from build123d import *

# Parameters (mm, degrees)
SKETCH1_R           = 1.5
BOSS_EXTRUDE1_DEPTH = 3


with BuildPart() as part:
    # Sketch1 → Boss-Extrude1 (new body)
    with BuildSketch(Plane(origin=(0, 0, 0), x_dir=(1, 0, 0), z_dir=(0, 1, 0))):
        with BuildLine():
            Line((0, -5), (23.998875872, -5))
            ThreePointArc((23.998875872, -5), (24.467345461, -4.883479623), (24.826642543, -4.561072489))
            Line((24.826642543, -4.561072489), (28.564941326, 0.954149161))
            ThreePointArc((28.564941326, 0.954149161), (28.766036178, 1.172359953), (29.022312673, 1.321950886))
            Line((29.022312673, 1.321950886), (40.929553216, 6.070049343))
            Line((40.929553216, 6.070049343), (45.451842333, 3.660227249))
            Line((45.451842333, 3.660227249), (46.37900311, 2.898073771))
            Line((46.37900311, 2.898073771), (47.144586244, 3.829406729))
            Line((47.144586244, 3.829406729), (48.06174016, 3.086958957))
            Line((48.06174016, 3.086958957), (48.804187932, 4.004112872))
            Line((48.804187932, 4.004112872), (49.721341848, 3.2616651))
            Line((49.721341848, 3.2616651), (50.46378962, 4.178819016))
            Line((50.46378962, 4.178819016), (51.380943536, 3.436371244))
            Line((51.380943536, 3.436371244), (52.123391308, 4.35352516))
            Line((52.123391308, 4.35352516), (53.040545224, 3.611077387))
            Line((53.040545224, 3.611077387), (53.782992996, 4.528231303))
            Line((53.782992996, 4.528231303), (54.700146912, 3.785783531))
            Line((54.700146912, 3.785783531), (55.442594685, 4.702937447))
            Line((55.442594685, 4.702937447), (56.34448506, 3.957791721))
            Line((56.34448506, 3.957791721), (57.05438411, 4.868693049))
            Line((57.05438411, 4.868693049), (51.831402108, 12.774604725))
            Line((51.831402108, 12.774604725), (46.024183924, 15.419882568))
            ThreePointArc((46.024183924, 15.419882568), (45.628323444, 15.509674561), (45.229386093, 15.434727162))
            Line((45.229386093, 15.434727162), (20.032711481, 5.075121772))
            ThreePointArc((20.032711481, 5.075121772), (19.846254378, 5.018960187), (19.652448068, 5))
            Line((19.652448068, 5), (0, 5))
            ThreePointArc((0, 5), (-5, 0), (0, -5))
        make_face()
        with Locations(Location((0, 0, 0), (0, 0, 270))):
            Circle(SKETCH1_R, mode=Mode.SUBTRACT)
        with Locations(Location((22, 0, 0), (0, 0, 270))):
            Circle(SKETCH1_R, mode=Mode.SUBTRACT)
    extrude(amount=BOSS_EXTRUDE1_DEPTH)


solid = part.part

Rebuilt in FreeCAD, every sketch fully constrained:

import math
import FreeCAD as App
import Part
import Sketcher
from FreeCAD import Vector

doc = App.newDocument("Part")
params = doc.addObject("Spreadsheet::Sheet", "Params")
for row, (alias, value) in enumerate([
    ("sketch1_diameter", "3 mm"),
    ("sketch1_diameter2", "3 mm"),
    ("sketch1_radius", "1 mm"),
    ("sketch1_radius2", "1 mm"),
    ("sketch1_radius3", "1 mm"),
    ("pad1_length", "3 mm"),
], start=1):
    params.set(f"A{row}", alias)
    params.set(f"B{row}", "=" + value)
    params.setAlias(f"B{row}", alias)

body = doc.addObject("PartDesign::Body", "Body")

# Sketch on XZ plane
sketch1 = body.newObject("Sketcher::SketchObject", "Sketch")
sketch1.AttachmentSupport = (doc.getObject("XZ_Plane"), [""])
sketch1.MapMode = "FlatFace"
sketch1.addGeometry([
    Part.LineSegment(Vector(0, 5, 0), Vector(23.998876, 5, 0)),  # 0
    Part.ArcOfCircle(Part.Circle(Vector(23.998876, 4, 0), Vector(0, 0, 1), 1), math.radians(34.13), math.radians(90)),  # 1
    Part.LineSegment(Vector(24.826643, 4.561072, 0), Vector(28.564941, -0.954149, 0)),  # 2
    Part.ArcOfCircle(Part.Circle(Vector(29.392708, -0.393077, 0), Vector(0, 0, 1), 1), math.radians(-145.87), math.radians(-111.74)),  # 3
    Part.LineSegment(Vector(29.022313, -1.321951, 0), Vector(40.929553, -6.070049, 0)),  # 4
    Part.LineSegment(Vector(40.929553, -6.070049, 0), Vector(45.451842, -3.660227, 0)),  # 5
    Part.LineSegment(Vector(45.451842, -3.660227, 0), Vector(46.379003, -2.898074, 0)),  # 6
    Part.LineSegment(Vector(46.379003, -2.898074, 0), Vector(47.144586, -3.829407, 0)),  # 7
    Part.LineSegment(Vector(47.144586, -3.829407, 0), Vector(48.06174, -3.086959, 0)),  # 8
    Part.LineSegment(Vector(48.06174, -3.086959, 0), Vector(48.804188, -4.004113, 0)),  # 9
    Part.LineSegment(Vector(48.804188, -4.004113, 0), Vector(49.721342, -3.261665, 0)),  # 10
    Part.LineSegment(Vector(49.721342, -3.261665, 0), Vector(50.46379, -4.178819, 0)),  # 11
    Part.LineSegment(Vector(50.46379, -4.178819, 0), Vector(51.380944, -3.436371, 0)),  # 12
    Part.LineSegment(Vector(51.380944, -3.436371, 0), Vector(52.123391, -4.353525, 0)),  # 13
    Part.LineSegment(Vector(52.123391, -4.353525, 0), Vector(53.040545, -3.611077, 0)),  # 14
    Part.LineSegment(Vector(53.040545, -3.611077, 0), Vector(53.782993, -4.528231, 0)),  # 15
    Part.LineSegment(Vector(53.782993, -4.528231, 0), Vector(54.700147, -3.785784, 0)),  # 16
    Part.LineSegment(Vector(54.700147, -3.785784, 0), Vector(55.442595, -4.702937, 0)),  # 17
    Part.LineSegment(Vector(55.442595, -4.702937, 0), Vector(56.344485, -3.957792, 0)),  # 18
    Part.LineSegment(Vector(56.344485, -3.957792, 0), Vector(57.054384, -4.868693, 0)),  # 19
    Part.LineSegment(Vector(57.054384, -4.868693, 0), Vector(51.831402, -12.774605, 0)),  # 20
    Part.LineSegment(Vector(51.831402, -12.774605, 0), Vector(46.024184, -15.419883, 0)),  # 21
    Part.ArcOfCircle(Part.Circle(Vector(45.60965, -14.509849, 0), Vector(0, 0, 1), 1), math.radians(-112.35), math.radians(-65.51)),  # 22
    Part.LineSegment(Vector(45.229386, -15.434727, 0), Vector(20.032711, -5.075122, 0)),  # 23
    Part.ArcOfCircle(Part.Circle(Vector(19.652448, -6, 0), Vector(0, 0, 1), 1), math.radians(67.65), math.radians(90)),  # 24
    Part.LineSegment(Vector(19.652448, -5, 0), Vector(0, -5, 0)),  # 25
    Part.ArcOfCircle(Part.Circle(Vector(0, 0, 0), Vector(0, 0, 1), 5), math.radians(90), math.radians(270)),  # 26
    Part.Circle(Vector(0, 0, 0), Vector(0, 0, 1), 1.5),  # 27
    Part.Circle(Vector(22, 0, 0), Vector(0, 0, 1), 1.5),  # 28
], False)
sketch1.addConstraint([
    Sketcher.Constraint("Coincident", 0, 2, 1, 2),
    Sketcher.Constraint("Coincident", 1, 1, 2, 1),
    Sketcher.Constraint("Coincident", 2, 2, 3, 1),
    Sketcher.Constraint("Coincident", 3, 2, 4, 1),
    Sketcher.Constraint("Coincident", 4, 2, 5, 1),
    Sketcher.Constraint("Coincident", 5, 2, 6, 1),
    Sketcher.Constraint("Coincident", 6, 2, 7, 1),
    Sketcher.Constraint("Coincident", 7, 2, 8, 1),
    Sketcher.Constraint("Coincident", 8, 2, 9, 1),
    Sketcher.Constraint("Coincident", 9, 2, 10, 1),
    Sketcher.Constraint("Coincident", 10, 2, 11, 1),
    Sketcher.Constraint("Coincident", 11, 2, 12, 1),
    Sketcher.Constraint("Coincident", 12, 2, 13, 1),
    Sketcher.Constraint("Coincident", 13, 2, 14, 1),
    Sketcher.Constraint("Coincident", 14, 2, 15, 1),
    Sketcher.Constraint("Coincident", 15, 2, 16, 1),
    Sketcher.Constraint("Coincident", 16, 2, 17, 1),
    Sketcher.Constraint("Coincident", 17, 2, 18, 1),
    Sketcher.Constraint("Coincident", 18, 2, 19, 1),
    Sketcher.Constraint("Coincident", 19, 2, 20, 1),
    Sketcher.Constraint("Coincident", 20, 2, 21, 1),
    Sketcher.Constraint("Coincident", 21, 2, 22, 2),
    Sketcher.Constraint("Coincident", 22, 1, 23, 1),
    Sketcher.Constraint("Coincident", 23, 2, 24, 1),
    Sketcher.Constraint("Coincident", 24, 2, 25, 1),
    Sketcher.Constraint("Coincident", 25, 2, 26, 2),
    Sketcher.Constraint("Coincident", 26, 1, 0, 1),
    Sketcher.Constraint("Horizontal", 0),
    Sketcher.Constraint("Horizontal", 25),
    Sketcher.Constraint("Coincident", 26, 3, -1, 1),
    Sketcher.Constraint("Coincident", 27, 3, -1, 1),
    Sketcher.Constraint("PointOnObject", 28, 3, -1),
    Sketcher.Constraint("PointOnObject", 25, 2, -2),
    Sketcher.Constraint("PointOnObject", 26, 1, -2),
    Sketcher.Constraint("Diameter", 27, 3.0),
    Sketcher.Constraint("Diameter", 28, 3.0),
    Sketcher.Constraint("Radius", 1, 1.0),
    Sketcher.Constraint("Radius", 3, 1.0),
    Sketcher.Constraint("Radius", 22, 1.0),
    Sketcher.Constraint("Radius", 24, 1.0),
    Sketcher.Constraint("Radius", 26, 5.0),
    Sketcher.Constraint("DistanceX", -1, 1, 28, 3, 22.0),
    Sketcher.Constraint("Distance", 8, 1.18),
    Sketcher.Constraint("Distance", 9, 1.18),
    Sketcher.Constraint("Distance", 10, 1.18),
    Sketcher.Constraint("Distance", 11, 1.18),
    Sketcher.Constraint("Distance", 12, 1.18),
    Sketcher.Constraint("Distance", 13, 1.18),
    Sketcher.Constraint("Distance", 14, 1.18),
    Sketcher.Constraint("Distance", 15, 1.18),
    Sketcher.Constraint("Distance", 16, 1.18),
    Sketcher.Constraint("Distance", 17, 1.18),
    Sketcher.Constraint("DistanceX", 25, 2, 25, 1, 19.652448),
    Sketcher.Constraint("DistanceX", 24, 3, 22, 3, 25.957201),
    Sketcher.Constraint("DistanceX", 1, 1, 2, 2, 3.738299),
    Sketcher.Constraint("DistanceY", 3, 2, 2, 2, 0.367802),
    Sketcher.Constraint("DistanceY", 22, 3, 4, 2, 8.4398),
    Sketcher.Constraint("DistanceY", 4, 2, 3, 2, 4.748098),
    Sketcher.Constraint("DistanceX", 2, 2, 5, 2, 16.886901),
    Sketcher.Constraint("DistanceX", 7, 2, 9, 2, 1.659602),
    Sketcher.Constraint("DistanceX", 8, 2, 10, 2, 1.659602),
    Sketcher.Constraint("DistanceX", 5, 2, 10, 2, 4.2695),
    Sketcher.Constraint("DistanceX", 9, 2, 11, 2, 1.659602),
    Sketcher.Constraint("DistanceX", 10, 2, 12, 2, 1.659602),
    Sketcher.Constraint("DistanceX", 11, 2, 13, 2, 1.659602),
    Sketcher.Constraint("DistanceX", 12, 2, 14, 2, 1.659602),
    Sketcher.Constraint("DistanceX", 13, 2, 15, 2, 1.659602),
    Sketcher.Constraint("DistanceX", 14, 2, 16, 2, 1.659602),
    Sketcher.Constraint("DistanceX", 15, 2, 17, 2, 1.659602),
    Sketcher.Constraint("DistanceX", 18, 2, 19, 2, 0.709899),
    Sketcher.Constraint("DistanceY", 19, 2, 18, 2, 0.910901),
    Sketcher.Constraint("DistanceX", 22, 1, 7, 2, 1.9152),
    Sketcher.Constraint("DistanceX", 23, 2, 3, 2, 8.989601),
    Sketcher.Constraint("Distance", 5, 5.124289),
    Sketcher.Constraint("Distance", 6, 1.20021),
    Sketcher.Constraint("Distance", 7, 1.205611),
    Sketcher.Constraint("Distance", 20, 9.475388),
    Sketcher.Constraint("DistanceX", 0, 1, 0, 2, 23.998876),
    Sketcher.Constraint("DistanceX", -1, 1, 22, 3, 45.60965),
    Sketcher.Constraint("DistanceY", 22, 3, -1, 1, 14.509849),
    Sketcher.Constraint("DistanceX", -1, 1, 2, 2, 28.564941),
    Sketcher.Constraint("DistanceY", 8, 2, -1, 1, 3.086959),
    Sketcher.Constraint("DistanceX", -1, 1, 11, 2, 50.46379),
    Sketcher.Constraint("DistanceY", 18, 2, -1, 1, 3.957792),
    Sketcher.Constraint("DistanceX", -1, 1, 23, 2, 20.032711),
    Sketcher.Constraint("DistanceY", 3, 3, 1, 1, 4.954149),
    Sketcher.Constraint("DistanceX", 3, 2, 4, 2, 11.907241),
    Sketcher.Constraint("DistanceX", 17, 2, 18, 2, 0.90189),
    Sketcher.Constraint("DistanceX", 20, 2, 13, 2, 0.291989),
    Sketcher.Constraint("DistanceX", 21, 2, 20, 2, 5.807218),
])
sketch1.setExpression("Constraints[34]", "Params.sketch1_diameter")
sketch1.setExpression("Constraints[35]", "Params.sketch1_diameter2")
sketch1.setExpression("Constraints[36]", "Params.sketch1_radius")
sketch1.setExpression("Constraints[37]", "Params.sketch1_radius2")
sketch1.setExpression("Constraints[38]", "Params.sketch1_radius3")
pad1 = body.newObject("PartDesign::Pad", "Pad")
pad1.Profile = sketch1
pad1.setExpression("Length", "Params.pad1_length")
pad1.Reversed = True

doc.recompute()
